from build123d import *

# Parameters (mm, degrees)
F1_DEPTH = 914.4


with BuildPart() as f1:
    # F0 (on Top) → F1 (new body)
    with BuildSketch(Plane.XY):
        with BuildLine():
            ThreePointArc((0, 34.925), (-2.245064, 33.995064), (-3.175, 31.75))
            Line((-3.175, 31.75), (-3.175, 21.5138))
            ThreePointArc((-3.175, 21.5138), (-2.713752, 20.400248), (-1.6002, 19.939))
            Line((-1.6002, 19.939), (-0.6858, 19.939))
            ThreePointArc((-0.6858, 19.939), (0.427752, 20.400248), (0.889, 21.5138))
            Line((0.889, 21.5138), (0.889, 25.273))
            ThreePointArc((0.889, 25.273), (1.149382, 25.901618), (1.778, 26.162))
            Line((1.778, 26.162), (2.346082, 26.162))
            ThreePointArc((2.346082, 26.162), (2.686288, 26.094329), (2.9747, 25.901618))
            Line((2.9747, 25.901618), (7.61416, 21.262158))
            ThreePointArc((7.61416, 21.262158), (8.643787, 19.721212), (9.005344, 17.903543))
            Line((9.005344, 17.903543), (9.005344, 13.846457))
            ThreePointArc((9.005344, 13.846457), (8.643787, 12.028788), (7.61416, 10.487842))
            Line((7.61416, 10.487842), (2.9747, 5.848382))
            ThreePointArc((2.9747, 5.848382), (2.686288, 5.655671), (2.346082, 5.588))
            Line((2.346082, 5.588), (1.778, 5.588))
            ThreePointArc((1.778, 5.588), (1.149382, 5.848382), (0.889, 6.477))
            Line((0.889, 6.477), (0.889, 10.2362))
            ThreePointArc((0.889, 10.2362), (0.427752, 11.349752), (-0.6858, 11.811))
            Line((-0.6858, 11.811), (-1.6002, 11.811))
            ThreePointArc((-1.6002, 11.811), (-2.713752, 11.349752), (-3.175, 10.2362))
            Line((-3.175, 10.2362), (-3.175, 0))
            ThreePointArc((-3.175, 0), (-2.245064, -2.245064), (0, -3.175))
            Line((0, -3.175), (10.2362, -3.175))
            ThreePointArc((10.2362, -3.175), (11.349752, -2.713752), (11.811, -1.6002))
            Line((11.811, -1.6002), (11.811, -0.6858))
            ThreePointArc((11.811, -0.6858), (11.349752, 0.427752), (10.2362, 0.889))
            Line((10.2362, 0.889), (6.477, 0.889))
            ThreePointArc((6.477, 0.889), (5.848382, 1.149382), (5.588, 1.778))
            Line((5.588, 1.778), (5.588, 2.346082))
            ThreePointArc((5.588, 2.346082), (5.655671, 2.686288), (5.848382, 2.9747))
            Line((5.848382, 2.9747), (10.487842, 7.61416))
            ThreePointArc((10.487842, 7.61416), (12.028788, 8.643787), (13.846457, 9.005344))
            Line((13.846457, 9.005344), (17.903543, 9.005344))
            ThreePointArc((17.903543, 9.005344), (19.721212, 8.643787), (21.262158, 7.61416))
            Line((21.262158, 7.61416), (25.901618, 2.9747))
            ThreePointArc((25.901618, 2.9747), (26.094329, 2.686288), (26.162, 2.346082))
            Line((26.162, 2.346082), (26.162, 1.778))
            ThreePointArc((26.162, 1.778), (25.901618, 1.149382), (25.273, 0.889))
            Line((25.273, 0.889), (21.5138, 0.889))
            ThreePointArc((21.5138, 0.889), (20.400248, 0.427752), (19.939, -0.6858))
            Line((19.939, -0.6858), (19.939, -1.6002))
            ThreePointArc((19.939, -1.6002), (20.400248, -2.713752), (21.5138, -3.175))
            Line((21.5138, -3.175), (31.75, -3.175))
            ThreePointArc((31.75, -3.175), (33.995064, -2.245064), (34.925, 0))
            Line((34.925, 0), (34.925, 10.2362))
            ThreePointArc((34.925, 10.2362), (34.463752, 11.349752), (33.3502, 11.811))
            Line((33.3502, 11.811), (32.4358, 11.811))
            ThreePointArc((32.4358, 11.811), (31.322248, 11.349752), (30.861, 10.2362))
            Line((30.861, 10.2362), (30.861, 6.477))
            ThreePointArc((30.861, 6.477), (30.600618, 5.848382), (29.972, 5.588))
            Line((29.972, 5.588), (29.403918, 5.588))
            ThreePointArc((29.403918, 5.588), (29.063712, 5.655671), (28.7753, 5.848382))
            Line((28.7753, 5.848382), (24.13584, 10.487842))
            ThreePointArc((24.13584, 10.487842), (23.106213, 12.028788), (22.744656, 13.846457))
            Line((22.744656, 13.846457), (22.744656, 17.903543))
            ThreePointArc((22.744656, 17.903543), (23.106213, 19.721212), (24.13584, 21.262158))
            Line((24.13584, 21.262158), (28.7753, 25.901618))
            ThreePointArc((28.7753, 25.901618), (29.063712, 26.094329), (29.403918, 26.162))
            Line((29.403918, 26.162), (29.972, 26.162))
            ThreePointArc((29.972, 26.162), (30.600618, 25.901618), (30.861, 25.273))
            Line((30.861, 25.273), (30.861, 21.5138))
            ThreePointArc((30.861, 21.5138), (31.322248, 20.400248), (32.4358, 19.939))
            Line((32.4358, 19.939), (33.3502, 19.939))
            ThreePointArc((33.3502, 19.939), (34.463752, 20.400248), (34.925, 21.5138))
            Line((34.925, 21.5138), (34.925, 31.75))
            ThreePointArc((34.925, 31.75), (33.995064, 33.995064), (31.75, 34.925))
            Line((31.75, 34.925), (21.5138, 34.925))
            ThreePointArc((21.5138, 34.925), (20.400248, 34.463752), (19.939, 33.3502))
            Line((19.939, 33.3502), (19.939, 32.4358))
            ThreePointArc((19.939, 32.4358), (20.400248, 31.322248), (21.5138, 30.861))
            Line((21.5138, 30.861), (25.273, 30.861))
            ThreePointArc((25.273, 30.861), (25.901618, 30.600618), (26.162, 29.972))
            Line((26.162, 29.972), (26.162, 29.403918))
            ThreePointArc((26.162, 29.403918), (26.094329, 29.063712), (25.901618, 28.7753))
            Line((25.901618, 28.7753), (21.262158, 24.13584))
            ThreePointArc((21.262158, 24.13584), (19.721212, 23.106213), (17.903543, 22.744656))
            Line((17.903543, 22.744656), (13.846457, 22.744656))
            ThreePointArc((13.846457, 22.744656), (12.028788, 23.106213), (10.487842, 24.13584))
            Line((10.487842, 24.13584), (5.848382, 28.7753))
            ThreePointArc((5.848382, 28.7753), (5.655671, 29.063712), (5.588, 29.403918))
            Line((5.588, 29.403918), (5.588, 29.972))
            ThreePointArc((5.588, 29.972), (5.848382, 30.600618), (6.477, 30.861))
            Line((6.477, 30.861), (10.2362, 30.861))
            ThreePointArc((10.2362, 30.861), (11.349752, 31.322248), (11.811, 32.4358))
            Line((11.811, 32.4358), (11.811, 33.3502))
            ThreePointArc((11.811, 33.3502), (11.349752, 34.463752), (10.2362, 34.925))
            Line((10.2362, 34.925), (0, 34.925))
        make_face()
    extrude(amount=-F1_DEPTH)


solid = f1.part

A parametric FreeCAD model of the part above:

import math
import FreeCAD as App
import Part
import Sketcher
Q = App.Units.Quantity

doc = App.newDocument("Part")
body = doc.addObject("PartDesign::Body", "Body")

# Sketch on XY plane
sketch1 = doc.addObject("Sketcher::SketchObject", "Sketch")
body.addObject(sketch1)
sketch1.AttachmentSupport = (doc.XY_Plane, [""])
sketch1.MapMode = "FlatFace"
sketch1.addGeometry([
    Part.ArcOfCircle(Part.Circle(App.Vector(0, 31.7, 0), App.Vector(0, 0, 1), 3.2), math.radians(90), math.radians(180)),  # 0
    Part.LineSegment(App.Vector(-3.2, 31.8, 0), App.Vector(-3.2, 21.5, 0)),  # 1
    Part.ArcOfCircle(Part.Circle(App.Vector(-1.6, 21.5, 0), App.Vector(0, 0, 1), 1.6), math.radians(180), math.radians(270)),  # 2
    Part.LineSegment(App.Vector(-1.6, 19.9, 0), App.Vector(-0.7, 19.9, 0)),  # 3
    Part.ArcOfCircle(Part.Circle(App.Vector(-0.7, 21.5, 0), App.Vector(0, 0, 1), 1.6), math.radians(-90), math.radians(0)),  # 4
    Part.LineSegment(App.Vector(0.9, 21.5, 0), App.Vector(0.9, 25.3, 0)),  # 5
    Part.ArcOfCircle(Part.Circle(App.Vector(1.8, 25.3, 0), App.Vector(0, 0, 1), 0.9), math.radians(90), math.radians(180)),  # 6
    Part.LineSegment(App.Vector(1.8, 26.2, 0), App.Vector(2.3, 26.2, 0)),  # 7
    Part.ArcOfCircle(Part.Circle(App.Vector(2.3, 25.3, 0), App.Vector(0, 0, 1), 0.9), math.radians(45), math.radians(90)),  # 8
    Part.LineSegment(App.Vector(3, 25.9, 0), App.Vector(7.6, 21.3, 0)),  # 9
    Part.ArcOfCircle(Part.Circle(App.Vector(4.3, 17.9, 0), App.Vector(0, 0, 1), 4.7), math.radians(0), math.radians(45)),  # 10
    Part.LineSegment(App.Vector(9, 17.9, 0), App.Vector(9, 13.8, 0)),  # 11
    Part.ArcOfCircle(Part.Circle(App.Vector(4.3, 13.8, 0), App.Vector(0, 0, 1), 4.7), math.radians(-45), math.radians(0)),  # 12
    Part.LineSegment(App.Vector(7.6, 10.5, 0), App.Vector(3, 5.8, 0)),  # 13
    Part.ArcOfCircle(Part.Circle(App.Vector(2.3, 6.5, 0), App.Vector(0, 0, 1), 0.9), math.radians(-90), math.radians(-45)),  # 14
    Part.LineSegment(App.Vector(2.3, 5.6, 0), App.Vector(1.8, 5.6, 0)),  # 15
    Part.ArcOfCircle(Part.Circle(App.Vector(1.8, 6.5, 0), App.Vector(0, 0, 1), 0.9), math.radians(180), math.radians(270)),  # 16
    Part.LineSegment(App.Vector(0.9, 6.5, 0), App.Vector(0.9, 10.2, 0)),  # 17
    Part.ArcOfCircle(Part.Circle(App.Vector(-0.7, 10.2, 0), App.Vector(0, 0, 1), 1.6), math.radians(0), math.radians(90)),  # 18
    Part.LineSegment(App.Vector(-0.7, 11.8, 0), App.Vector(-1.6, 11.8, 0)),  # 19
    Part.ArcOfCircle(Part.Circle(App.Vector(-1.6, 10.2, 0), App.Vector(0, 0, 1), 1.6), math.radians(90), math.radians(180)),  # 20
    Part.LineSegment(App.Vector(-3.2, 10.2, 0), App.Vector(-3.2, 0, 0)),  # 21
    Part.ArcOfCircle(Part.Circle(App.Vector(0, 0, 0), App.Vector(0, 0, 1), 3.2), math.radians(-180), math.radians(-90)),  # 22
    Part.LineSegment(App.Vector(0, -3.2, 0), App.Vector(10.2, -3.2, 0)),  # 23
    Part.ArcOfCircle(Part.Circle(App.Vector(10.2, -1.6, 0), App.Vector(0, 0, 1), 1.6), math.radians(-90), math.radians(0)),  # 24
    Part.LineSegment(App.Vector(11.8, -1.6, 0), App.Vector(11.8, -0.7, 0)),  # 25
    Part.ArcOfCircle(Part.Circle(App.Vector(10.2, -0.7, 0), App.Vector(0, 0, 1), 1.6), math.radians(0), math.radians(90)),  # 26
    Part.LineSegment(App.Vector(10.2, 0.9, 0), App.Vector(6.5, 0.9, 0)),  # 27
    Part.ArcOfCircle(Part.Circle(App.Vector(6.5, 1.8, 0), App.Vector(0, 0, 1), 0.9), math.radians(180), math.radians(270)),  # 28
    Part.LineSegment(App.Vector(5.6, 1.8, 0), App.Vector(5.6, 2.3, 0)),  # 29
    Part.ArcOfCircle(Part.Circle(App.Vector(6.5, 2.3, 0), App.Vector(0, 0, 1), 0.9), math.radians(135), math.radians(180)),  # 30
    Part.LineSegment(App.Vector(5.8, 3, 0), App.Vector(10.5, 7.6, 0)),  # 31
    Part.ArcOfCircle(Part.Circle(App.Vector(13.8, 4.3, 0), App.Vector(0, 0, 1), 4.7), math.radians(90), math.radians(135)),  # 32
    Part.LineSegment(App.Vector(13.8, 9, 0), App.Vector(17.9, 9, 0)),  # 33
    Part.ArcOfCircle(Part.Circle(App.Vector(17.9, 4.3, 0), App.Vector(0, 0, 1), 4.7), math.radians(45), math.radians(90)),  # 34
    Part.LineSegment(App.Vector(21.3, 7.6, 0), App.Vector(25.9, 3, 0)),  # 35
    Part.ArcOfCircle(Part.Circle(App.Vector(25.3, 2.3, 0), App.Vector(0, 0, 1), 0.9), math.radians(0), math.radians(45)),  # 36
    Part.LineSegment(App.Vector(26.2, 2.3, 0), App.Vector(26.2, 1.8, 0)),  # 37
    Part.ArcOfCircle(Part.Circle(App.Vector(25.3, 1.8, 0), App.Vector(0, 0, 1), 0.9), math.radians(-90), math.radians(0)),  # 38
    Part.LineSegment(App.Vector(25.3, 0.9, 0), App.Vector(21.5, 0.9, 0)),  # 39
    Part.ArcOfCircle(Part.Circle(App.Vector(21.5, -0.7, 0), App.Vector(0, 0, 1), 1.6), math.radians(90), math.radians(180)),  # 40
    Part.LineSegment(App.Vector(19.9, -0.7, 0), App.Vector(19.9, -1.6, 0)),  # 41
    Part.ArcOfCircle(Part.Circle(App.Vector(21.5, -1.6, 0), App.Vector(0, 0, 1), 1.6), math.radians(180), math.radians(270)),  # 42
    Part.LineSegment(App.Vector(21.5, -3.2, 0), App.Vector(31.8, -3.2, 0)),  # 43
    Part.ArcOfCircle(Part.Circle(App.Vector(31.7, 0, 0), App.Vector(0, 0, 1), 3.2), math.radians(-90), math.radians(0)),  # 44
    Part.LineSegment(App.Vector(34.9, 0, 0), App.Vector(34.9, 10.2, 0)),  # 45
    Part.ArcOfCircle(Part.Circle(App.Vector(33.4, 10.2, 0), App.Vector(0, 0, 1), 1.6), math.radians(0), math.radians(90)),  # 46
    Part.LineSegment(App.Vector(33.4, 11.8, 0), App.Vector(32.4, 11.8, 0)),  # 47
    Part.ArcOfCircle(Part.Circle(App.Vector(32.4, 10.2, 0), App.Vector(0, 0, 1), 1.6), math.radians(90), math.radians(180)),  # 48
    Part.LineSegment(App.Vector(30.9, 10.2, 0), App.Vector(30.9, 6.5, 0)),  # 49
    Part.ArcOfCircle(Part.Circle(App.Vector(30, 6.5, 0), App.Vector(0, 0, 1), 0.9), math.radians(-90), math.radians(0)),  # 50
    Part.LineSegment(App.Vector(30, 5.6, 0), App.Vector(29.4, 5.6, 0)),  # 51
    Part.ArcOfCircle(Part.Circle(App.Vector(29.4, 6.5, 0), App.Vector(0, 0, 1), 0.9), math.radians(-135), math.radians(-90)),  # 52
    Part.LineSegment(App.Vector(28.8, 5.8, 0), App.Vector(24.1, 10.5, 0)),  # 53
    Part.ArcOfCircle(Part.Circle(App.Vector(27.5, 13.8, 0), App.Vector(0, 0, 1), 4.7), math.radians(-180), math.radians(-135)),  # 54
    Part.LineSegment(App.Vector(22.7, 13.8, 0), App.Vector(22.7, 17.9, 0)),  # 55
    Part.ArcOfCircle(Part.Circle(App.Vector(27.5, 17.9, 0), App.Vector(0, 0, 1), 4.7), math.radians(135), math.radians(180)),  # 56
    Part.LineSegment(App.Vector(24.1, 21.3, 0), App.Vector(28.8, 25.9, 0)),  # 57
    Part.ArcOfCircle(Part.Circle(App.Vector(29.4, 25.3, 0), App.Vector(0, 0, 1), 0.9), math.radians(90), math.radians(135)),  # 58
    Part.LineSegment(App.Vector(29.4, 26.2, 0), App.Vector(30, 26.2, 0)),  # 59
    Part.ArcOfCircle(Part.Circle(App.Vector(30, 25.3, 0), App.Vector(0, 0, 1), 0.9), math.radians(0), math.radians(90)),  # 60
    Part.LineSegment(App.Vector(30.9, 25.3, 0), App.Vector(30.9, 21.5, 0)),  # 61
    Part.ArcOfCircle(Part.Circle(App.Vector(32.4, 21.5, 0), App.Vector(0, 0, 1), 1.6), math.radians(180), math.radians(270)),  # 62
    Part.LineSegment(App.Vector(32.4, 19.9, 0), App.Vector(33.4, 19.9, 0)),  # 63
    Part.ArcOfCircle(Part.Circle(App.Vector(33.4, 21.5, 0), App.Vector(0, 0, 1), 1.6), math.radians(-90), math.radians(0)),  # 64
    Part.LineSegment(App.Vector(34.9, 21.5, 0), App.Vector(34.9, 31.8, 0)),  # 65
    Part.ArcOfCircle(Part.Circle(App.Vector(31.7, 31.7, 0), App.Vector(0, 0, 1), 3.2), math.radians(0), math.radians(90)),  # 66
    Part.LineSegment(App.Vector(31.8, 34.9, 0), App.Vector(21.5, 34.9, 0)),  # 67
    Part.ArcOfCircle(Part.Circle(App.Vector(21.5, 33.4, 0), App.Vector(0, 0, 1), 1.6), math.radians(90), math.radians(180)),  # 68
    Part.LineSegment(App.Vector(19.9, 33.4, 0), App.Vector(19.9, 32.4, 0)),  # 69
    Part.ArcOfCircle(Part.Circle(App.Vector(21.5, 32.4, 0), App.Vector(0, 0, 1), 1.6), math.radians(180), math.radians(270)),  # 70
    Part.LineSegment(App.Vector(21.5, 30.9, 0), App.Vector(25.3, 30.9, 0)),  # 71
    Part.ArcOfCircle(Part.Circle(App.Vector(25.3, 30, 0), App.Vector(0, 0, 1), 0.9), math.radians(0), math.radians(90)),  # 72
    Part.LineSegment(App.Vector(26.2, 30, 0), App.Vector(26.2, 29.4, 0)),  # 73
    Part.ArcOfCircle(Part.Circle(App.Vector(25.3, 29.4, 0), App.Vector(0, 0, 1), 0.9), math.radians(-45), math.radians(0)),  # 74
    Part.LineSegment(App.Vector(25.9, 28.8, 0), App.Vector(21.3, 24.1, 0)),  # 75
    Part.ArcOfCircle(Part.Circle(App.Vector(17.9, 27.5, 0), App.Vector(0, 0, 1), 4.7), math.radians(-90), math.radians(-45)),  # 76
    Part.LineSegment(App.Vector(17.9, 22.7, 0), App.Vector(13.8, 22.7, 0)),  # 77
    Part.ArcOfCircle(Part.Circle(App.Vector(13.8, 27.5, 0), App.Vector(0, 0, 1), 4.7), math.radians(-135), math.radians(-90)),  # 78
    Part.LineSegment(App.Vector(10.5, 24.1, 0), App.Vector(5.8, 28.8, 0)),  # 79
    Part.ArcOfCircle(Part.Circle(App.Vector(6.5, 29.4, 0), App.Vector(0, 0, 1), 0.9), math.radians(180), math.radians(225)),  # 80
    Part.LineSegment(App.Vector(5.6, 29.4, 0), App.Vector(5.6, 30, 0)),  # 81
    Part.ArcOfCircle(Part.Circle(App.Vector(6.5, 30, 0), App.Vector(0, 0, 1), 0.9), math.radians(90), math.radians(180)),  # 82
    Part.LineSegment(App.Vector(6.5, 30.9, 0), App.Vector(10.2, 30.9, 0)),  # 83
    Part.ArcOfCircle(Part.Circle(App.Vector(10.2, 32.4, 0), App.Vector(0, 0, 1), 1.6), math.radians(-90), math.radians(0)),  # 84
    Part.LineSegment(App.Vector(11.8, 32.4, 0), App.Vector(11.8, 33.4, 0)),  # 85
    Part.ArcOfCircle(Part.Circle(App.Vector(10.2, 33.4, 0), App.Vector(0, 0, 1), 1.6), math.radians(0), math.radians(90)),  # 86
    Part.LineSegment(App.Vector(10.2, 34.9, 0), App.Vector(0, 34.9, 0)),  # 87
], False)
sketch1.addConstraint([
    Sketcher.Constraint("Tangent", 0, 2, 1, 1),
    Sketcher.Constraint("Tangent", 1, 2, 2, 1),
    Sketcher.Constraint("Tangent", 2, 2, 3, 1),
    Sketcher.Constraint("Tangent", 3, 2, 4, 1),
    Sketcher.Constraint("Tangent", 4, 2, 5, 1),
    Sketcher.Constraint("Tangent", 5, 2, 6, 2),
    Sketcher.Constraint("Tangent", 6, 1, 7, 1),
    Sketcher.Constraint("Tangent", 7, 2, 8, 2),
    Sketcher.Constraint("Tangent", 8, 1, 9, 1),
    Sketcher.Constraint("Tangent", 9, 2, 10, 2),
    Sketcher.Constraint("Tangent", 10, 1, 11, 1),
    Sketcher.Constraint("Tangent", 11, 2, 12, 2),
    Sketcher.Constraint("Tangent", 12, 1, 13, 1),
    Sketcher.Constraint("Tangent", 13, 2, 14, 2),
    Sketcher.Constraint("Tangent", 14, 1, 15, 1),
    Sketcher.Constraint("Tangent", 15, 2, 16, 2),
    Sketcher.Constraint("Tangent", 16, 1, 17, 1),
    Sketcher.Constraint("Tangent", 17, 2, 18, 1),
    Sketcher.Constraint("Tangent", 18, 2, 19, 1),
    Sketcher.Constraint("Tangent", 19, 2, 20, 1),
    Sketcher.Constraint("Tangent", 20, 2, 21, 1),
    Sketcher.Constraint("Tangent", 21, 2, 22, 1),
    Sketcher.Constraint("Tangent", 22, 2, 23, 1),
    Sketcher.Constraint("Tangent", 23, 2, 24, 1),
    Sketcher.Constraint("Tangent", 24, 2, 25, 1),
    Sketcher.Constraint("Tangent", 25, 2, 26, 1),
    Sketcher.Constraint("Tangent", 26, 2, 27, 1),
    Sketcher.Constraint("Tangent", 27, 2, 28, 2),
    Sketcher.Constraint("Tangent", 28, 1, 29, 1),
    Sketcher.Constraint("Tangent", 29, 2, 30, 2),
    Sketcher.Constraint("Tangent", 30, 1, 31, 1),
    Sketcher.Constraint("Tangent", 31, 2, 32, 2),
    Sketcher.Constraint("Tangent", 32, 1, 33, 1),
    Sketcher.Constraint("Tangent", 33, 2, 34, 2),
    Sketcher.Constraint("Tangent", 34, 1, 35, 1),
    Sketcher.Constraint("Tangent", 35, 2, 36, 2),
    Sketcher.Constraint("Tangent", 36, 1, 37, 1),
    Sketcher.Constraint("Tangent", 37, 2, 38, 2),
    Sketcher.Constraint("Tangent", 38, 1, 39, 1),
    Sketcher.Constraint("Tangent", 39, 2, 40, 1),
    Sketcher.Constraint("Tangent", 40, 2, 41, 1),
    Sketcher.Constraint("Tangent", 41, 2, 42, 1),
    Sketcher.Constraint("Tangent", 42, 2, 43, 1),
    Sketcher.Constraint("Tangent", 43, 2, 44, 1),
    Sketcher.Constraint("Tangent", 44, 2, 45, 1),
    Sketcher.Constraint("Tangent", 45, 2, 46, 1),
    Sketcher.Constraint("Tangent", 46, 2, 47, 1),
    Sketcher.Constraint("Tangent", 47, 2, 48, 1),
    Sketcher.Constraint("Tangent", 48, 2, 49, 1),
    Sketcher.Constraint("Tangent", 49, 2, 50, 2),
    Sketcher.Constraint("Tangent", 50, 1, 51, 1),
    Sketcher.Constraint("Tangent", 51, 2, 52, 2),
    Sketcher.Constraint("Tangent", 52, 1, 53, 1),
    Sketcher.Constraint("Tangent", 53, 2, 54, 2),
    Sketcher.Constraint("Tangent", 54, 1, 55, 1),
    Sketcher.Constraint("Tangent", 55, 2, 56, 2),
    Sketcher.Constraint("Tangent", 56, 1, 57, 1),
    Sketcher.Constraint("Tangent", 57, 2, 58, 2),
    Sketcher.Constraint("Tangent", 58, 1, 59, 1),
    Sketcher.Constraint("Tangent", 59, 2, 60, 2),
    Sketcher.Constraint("Tangent", 60, 1, 61, 1),
    Sketcher.Constraint("Tangent", 61, 2, 62, 1),
    Sketcher.Constraint("Tangent", 62, 2, 63, 1),
    Sketcher.Constraint("Tangent", 63, 2, 64, 1),
    Sketcher.Constraint("Tangent", 64, 2, 65, 1),
    Sketcher.Constraint("Tangent", 65, 2, 66, 1),
    Sketcher.Constraint("Tangent", 66, 2, 67, 1),
    Sketcher.Constraint("Tangent", 67, 2, 68, 1),
    Sketcher.Constraint("Tangent", 68, 2, 69, 1),
    Sketcher.Constraint("Tangent", 69, 2, 70, 1),
    Sketcher.Constraint("Tangent", 70, 2, 71, 1),
    Sketcher.Constraint("Tangent", 71, 2, 72, 2),
    Sketcher.Constraint("Tangent", 72, 1, 73, 1),
    Sketcher.Constraint("Tangent", 73, 2, 74, 2),
    Sketcher.Constraint("Tangent", 74, 1, 75, 1),
    Sketcher.Constraint("Tangent", 75, 2, 76, 2),
    Sketcher.Constraint("Tangent", 76, 1, 77, 1),
    Sketcher.Constraint("Tangent", 77, 2, 78, 2),
    Sketcher.Constraint("Tangent", 78, 1, 79, 1),
    Sketcher.Constraint("Tangent", 79, 2, 80, 2),
    Sketcher.Constraint("Tangent", 80, 1, 81, 1),
    Sketcher.Constraint("Tangent", 81, 2, 82, 2),
    Sketcher.Constraint("Tangent", 82, 1, 83, 1),
    Sketcher.Constraint("Tangent", 83, 2, 84, 1),
    Sketcher.Constraint("Tangent", 84, 2, 85, 1),
    Sketcher.Constraint("Tangent", 85, 2, 86, 1),
    Sketcher.Constraint("Tangent", 86, 2, 87, 1),
    Sketcher.Constraint("Tangent", 87, 2, 0, 1),
    Sketcher.Constraint("Vertical", 1),
    Sketcher.Constraint("Horizontal", 3),
    Sketcher.Constraint("Vertical", 5),
    Sketcher.Constraint("Horizontal", 7),
    Sketcher.Constraint("Vertical", 11),
    Sketcher.Constraint("Horizontal", 15),
    Sketcher.Constraint("Vertical", 17),
    Sketcher.Constraint("Horizontal", 19),
    Sketcher.Constraint("Vertical", 21),
    Sketcher.Constraint("Horizontal", 23),
    Sketcher.Constraint("Vertical", 25),
    Sketcher.Constraint("Horizontal", 27),
    Sketcher.Constraint("Vertical", 29),
    Sketcher.Constraint("Horizontal", 33),
    Sketcher.Constraint("Vertical", 37),
    Sketcher.Constraint("Horizontal", 39),
    Sketcher.Constraint("Vertical", 41),
    Sketcher.Constraint("Horizontal", 43),
    Sketcher.Constraint("Vertical", 45),
    Sketcher.Constraint("Horizontal", 47),
    Sketcher.Constraint("Vertical", 49),
    Sketcher.Constraint("Horizontal", 51),
    Sketcher.Constraint("Vertical", 55),
    Sketcher.Constraint("Horizontal", 59),
    Sketcher.Constraint("Vertical", 61),
    Sketcher.Constraint("Horizontal", 63),
    Sketcher.Constraint("Vertical", 65),
    Sketcher.Constraint("Horizontal", 67),
    Sketcher.Constraint("Vertical", 69),
    Sketcher.Constraint("Horizontal", 71),
    Sketcher.Constraint("Vertical", 73),
    Sketcher.Constraint("Horizontal", 77),
    Sketcher.Constraint("Vertical", 81),
    Sketcher.Constraint("Horizontal", 83),
    Sketcher.Constraint("Vertical", 85),
    Sketcher.Constraint("Horizontal", 87),
    Sketcher.Constraint("Coincident", 22, 3, -1, 1),
    Sketcher.Constraint("Equal", 2, 4),
    Sketcher.Constraint("Equal", 10, 12),
    Sketcher.Constraint("Equal", 8, 14),
    Sketcher.Constraint("Equal", 6, 16),
    Sketcher.Constraint("Equal", 4, 18),
    Sketcher.Constraint("Equal", 18, 20),
    Sketcher.Constraint("Equal", 0, 22),
    Sketcher.Constraint("Equal", 20, 24),
    Sketcher.Constraint("Equal", 24, 26),
    Sketcher.Constraint("Equal", 16, 28),
    Sketcher.Constraint("Equal", 14, 30),
    Sketcher.Constraint("Equal", 12, 32),
    Sketcher.Constraint("Equal", 32, 34),
    Sketcher.Constraint("Equal", 30, 36),
    Sketcher.Constraint("Equal", 28, 38),
    Sketcher.Constraint("Equal", 26, 40),
    Sketcher.Constraint("Equal", 40, 42),
    Sketcher.Constraint("Equal", 22, 44),
    Sketcher.Constraint("Equal", 42, 46),
    Sketcher.Constraint("Equal", 46, 48),
    Sketcher.Constraint("Equal", 38, 50),
    Sketcher.Constraint("Equal", 36, 52),
    Sketcher.Constraint("Equal", 34, 54),
    Sketcher.Constraint("Equal", 54, 56),
    Sketcher.Constraint("Equal", 52, 58),
    Sketcher.Constraint("Equal", 50, 60),
    Sketcher.Constraint("Equal", 48, 62),
    Sketcher.Constraint("Equal", 62, 64),
    Sketcher.Constraint("Equal", 44, 66),
    Sketcher.Constraint("Equal", 64, 68),
    Sketcher.Constraint("Equal", 68, 70),
    Sketcher.Constraint("Equal", 60, 72),
    Sketcher.Constraint("Equal", 58, 74),
    Sketcher.Constraint("Equal", 56, 76),
    Sketcher.Constraint("Equal", 76, 78),
    Sketcher.Constraint("Equal", 74, 80),
    Sketcher.Constraint("Equal", 72, 82),
    Sketcher.Constraint("Equal", 70, 84),
    Sketcher.Constraint("Equal", 84, 86),
    Sketcher.Constraint("PointOnObject", 0, 3, -2),
    Sketcher.Constraint("PointOnObject", 44, 3, -1),
    Sketcher.Constraint("Perpendicular", 9, 13),
    Sketcher.Constraint("Parallel", 13, 31),
    Sketcher.Constraint("Perpendicular", 31, 35),
    Sketcher.Constraint("Parallel", 35, 53),
    Sketcher.Constraint("Perpendicular", 53, 57),
    Sketcher.Constraint("Parallel", 57, 75),
    Sketcher.Constraint("Perpendicular", 75, 79),
    Sketcher.Constraint("Horizontal", 30, 3, 36, 3),
    Sketcher.Constraint("Horizontal", 28, 3, 38, 3),
    Sketcher.Constraint("Horizontal", 20, 3, 46, 3),
    Sketcher.Constraint("Horizontal", 16, 3, 50, 3),
    Sketcher.Constraint("Horizontal", 12, 3, 54, 3),
    Sketcher.Constraint("Horizontal", 10, 3, 56, 3),
    Sketcher.Constraint("Horizontal", 8, 3, 58, 3),
    Sketcher.Constraint("Horizontal", 4, 3, 62, 3),
    Sketcher.Constraint("Horizontal", 0, 3, 66, 3),
    Sketcher.Constraint("Horizontal", 74, 3, 80, 3),
    Sketcher.Constraint("Horizontal", 72, 3, 82, 3),
    Sketcher.Constraint("Horizontal", 31, 2, 34, 1),
    Sketcher.Constraint("Vertical", 8, 3, 14, 3),
    Sketcher.Constraint("Vertical", 6, 3, 16, 3),
    Sketcher.Constraint("Vertical", 50, 3, 60, 3),
    Sketcher.Constraint("Vertical", 46, 3, 64, 3),
    Sketcher.Constraint("Vertical", 42, 3, 68, 3),
    Sketcher.Constraint("Vertical", 38, 3, 72, 3),
    Sketcher.Constraint("Vertical", 34, 3, 76, 3),
    Sketcher.Constraint("Vertical", 32, 3, 78, 3),
    Sketcher.Constraint("Vertical", 26, 3, 84, 3),
    Sketcher.Constraint("Equal", 27, 39),
    Sketcher.Constraint("Equal", 23, 43),
    Sketcher.Constraint("Equal", 19, 47),
    Sketcher.Constraint("Equal", 15, 51),
    Sketcher.Constraint("Equal", 87, 1),
    Sketcher.Constraint("Equal", 83, 5),
    Sketcher.Constraint("Equal", 77, 11),
    Sketcher.Constraint("Equal", 5, 17),
    Sketcher.Constraint("Equal", 1, 21),
    Sketcher.Constraint("Equal", 63, 25),
    Sketcher.Constraint("Equal", 59, 29),
    Sketcher.Constraint("Equal", 41, 69),
    Sketcher.Constraint("Equal", 37, 73),
    Sketcher.Constraint("Equal", 13, 31),
    Sketcher.Constraint("Radius", 0, Q("0.125 in")),
    Sketcher.Constraint("Radius", 2, Q("0.062 in")),
    Sketcher.Constraint("Radius", 6, Q("0.035 in")),
    Sketcher.Constraint("Radius", 8, Q("0.0349999 in")),
    Sketcher.Constraint("Radius", 10, Q("0.187 in")),
    Sketcher.Constraint("DistanceX", 3, 1, 3, 2, Q("0.036 in")),
    Sketcher.Constraint("DistanceX", 23, 1, 23, 2, Q("0.403 in")),
    Sketcher.Constraint("DistanceX", 27, 2, 27, 1, Q("0.148 in")),
    Sketcher.Constraint("DistanceY", -1, 1, 0, 3, Q("1.25 in")),
    Sketcher.Constraint("DistanceX", 7, 1, 7, 2, Q("0.568082 mm")),
    Sketcher.Constraint("DistanceX", 33, 1, 33, 2, Q("4.057086 mm")),
])
pad1 = doc.addObject("PartDesign::Pad", "Pad")
body.addObject(pad1)
pad1.Profile = sketch1
pad1.Length = Q("36 in")
pad1.Reversed = True

doc.recompute()
